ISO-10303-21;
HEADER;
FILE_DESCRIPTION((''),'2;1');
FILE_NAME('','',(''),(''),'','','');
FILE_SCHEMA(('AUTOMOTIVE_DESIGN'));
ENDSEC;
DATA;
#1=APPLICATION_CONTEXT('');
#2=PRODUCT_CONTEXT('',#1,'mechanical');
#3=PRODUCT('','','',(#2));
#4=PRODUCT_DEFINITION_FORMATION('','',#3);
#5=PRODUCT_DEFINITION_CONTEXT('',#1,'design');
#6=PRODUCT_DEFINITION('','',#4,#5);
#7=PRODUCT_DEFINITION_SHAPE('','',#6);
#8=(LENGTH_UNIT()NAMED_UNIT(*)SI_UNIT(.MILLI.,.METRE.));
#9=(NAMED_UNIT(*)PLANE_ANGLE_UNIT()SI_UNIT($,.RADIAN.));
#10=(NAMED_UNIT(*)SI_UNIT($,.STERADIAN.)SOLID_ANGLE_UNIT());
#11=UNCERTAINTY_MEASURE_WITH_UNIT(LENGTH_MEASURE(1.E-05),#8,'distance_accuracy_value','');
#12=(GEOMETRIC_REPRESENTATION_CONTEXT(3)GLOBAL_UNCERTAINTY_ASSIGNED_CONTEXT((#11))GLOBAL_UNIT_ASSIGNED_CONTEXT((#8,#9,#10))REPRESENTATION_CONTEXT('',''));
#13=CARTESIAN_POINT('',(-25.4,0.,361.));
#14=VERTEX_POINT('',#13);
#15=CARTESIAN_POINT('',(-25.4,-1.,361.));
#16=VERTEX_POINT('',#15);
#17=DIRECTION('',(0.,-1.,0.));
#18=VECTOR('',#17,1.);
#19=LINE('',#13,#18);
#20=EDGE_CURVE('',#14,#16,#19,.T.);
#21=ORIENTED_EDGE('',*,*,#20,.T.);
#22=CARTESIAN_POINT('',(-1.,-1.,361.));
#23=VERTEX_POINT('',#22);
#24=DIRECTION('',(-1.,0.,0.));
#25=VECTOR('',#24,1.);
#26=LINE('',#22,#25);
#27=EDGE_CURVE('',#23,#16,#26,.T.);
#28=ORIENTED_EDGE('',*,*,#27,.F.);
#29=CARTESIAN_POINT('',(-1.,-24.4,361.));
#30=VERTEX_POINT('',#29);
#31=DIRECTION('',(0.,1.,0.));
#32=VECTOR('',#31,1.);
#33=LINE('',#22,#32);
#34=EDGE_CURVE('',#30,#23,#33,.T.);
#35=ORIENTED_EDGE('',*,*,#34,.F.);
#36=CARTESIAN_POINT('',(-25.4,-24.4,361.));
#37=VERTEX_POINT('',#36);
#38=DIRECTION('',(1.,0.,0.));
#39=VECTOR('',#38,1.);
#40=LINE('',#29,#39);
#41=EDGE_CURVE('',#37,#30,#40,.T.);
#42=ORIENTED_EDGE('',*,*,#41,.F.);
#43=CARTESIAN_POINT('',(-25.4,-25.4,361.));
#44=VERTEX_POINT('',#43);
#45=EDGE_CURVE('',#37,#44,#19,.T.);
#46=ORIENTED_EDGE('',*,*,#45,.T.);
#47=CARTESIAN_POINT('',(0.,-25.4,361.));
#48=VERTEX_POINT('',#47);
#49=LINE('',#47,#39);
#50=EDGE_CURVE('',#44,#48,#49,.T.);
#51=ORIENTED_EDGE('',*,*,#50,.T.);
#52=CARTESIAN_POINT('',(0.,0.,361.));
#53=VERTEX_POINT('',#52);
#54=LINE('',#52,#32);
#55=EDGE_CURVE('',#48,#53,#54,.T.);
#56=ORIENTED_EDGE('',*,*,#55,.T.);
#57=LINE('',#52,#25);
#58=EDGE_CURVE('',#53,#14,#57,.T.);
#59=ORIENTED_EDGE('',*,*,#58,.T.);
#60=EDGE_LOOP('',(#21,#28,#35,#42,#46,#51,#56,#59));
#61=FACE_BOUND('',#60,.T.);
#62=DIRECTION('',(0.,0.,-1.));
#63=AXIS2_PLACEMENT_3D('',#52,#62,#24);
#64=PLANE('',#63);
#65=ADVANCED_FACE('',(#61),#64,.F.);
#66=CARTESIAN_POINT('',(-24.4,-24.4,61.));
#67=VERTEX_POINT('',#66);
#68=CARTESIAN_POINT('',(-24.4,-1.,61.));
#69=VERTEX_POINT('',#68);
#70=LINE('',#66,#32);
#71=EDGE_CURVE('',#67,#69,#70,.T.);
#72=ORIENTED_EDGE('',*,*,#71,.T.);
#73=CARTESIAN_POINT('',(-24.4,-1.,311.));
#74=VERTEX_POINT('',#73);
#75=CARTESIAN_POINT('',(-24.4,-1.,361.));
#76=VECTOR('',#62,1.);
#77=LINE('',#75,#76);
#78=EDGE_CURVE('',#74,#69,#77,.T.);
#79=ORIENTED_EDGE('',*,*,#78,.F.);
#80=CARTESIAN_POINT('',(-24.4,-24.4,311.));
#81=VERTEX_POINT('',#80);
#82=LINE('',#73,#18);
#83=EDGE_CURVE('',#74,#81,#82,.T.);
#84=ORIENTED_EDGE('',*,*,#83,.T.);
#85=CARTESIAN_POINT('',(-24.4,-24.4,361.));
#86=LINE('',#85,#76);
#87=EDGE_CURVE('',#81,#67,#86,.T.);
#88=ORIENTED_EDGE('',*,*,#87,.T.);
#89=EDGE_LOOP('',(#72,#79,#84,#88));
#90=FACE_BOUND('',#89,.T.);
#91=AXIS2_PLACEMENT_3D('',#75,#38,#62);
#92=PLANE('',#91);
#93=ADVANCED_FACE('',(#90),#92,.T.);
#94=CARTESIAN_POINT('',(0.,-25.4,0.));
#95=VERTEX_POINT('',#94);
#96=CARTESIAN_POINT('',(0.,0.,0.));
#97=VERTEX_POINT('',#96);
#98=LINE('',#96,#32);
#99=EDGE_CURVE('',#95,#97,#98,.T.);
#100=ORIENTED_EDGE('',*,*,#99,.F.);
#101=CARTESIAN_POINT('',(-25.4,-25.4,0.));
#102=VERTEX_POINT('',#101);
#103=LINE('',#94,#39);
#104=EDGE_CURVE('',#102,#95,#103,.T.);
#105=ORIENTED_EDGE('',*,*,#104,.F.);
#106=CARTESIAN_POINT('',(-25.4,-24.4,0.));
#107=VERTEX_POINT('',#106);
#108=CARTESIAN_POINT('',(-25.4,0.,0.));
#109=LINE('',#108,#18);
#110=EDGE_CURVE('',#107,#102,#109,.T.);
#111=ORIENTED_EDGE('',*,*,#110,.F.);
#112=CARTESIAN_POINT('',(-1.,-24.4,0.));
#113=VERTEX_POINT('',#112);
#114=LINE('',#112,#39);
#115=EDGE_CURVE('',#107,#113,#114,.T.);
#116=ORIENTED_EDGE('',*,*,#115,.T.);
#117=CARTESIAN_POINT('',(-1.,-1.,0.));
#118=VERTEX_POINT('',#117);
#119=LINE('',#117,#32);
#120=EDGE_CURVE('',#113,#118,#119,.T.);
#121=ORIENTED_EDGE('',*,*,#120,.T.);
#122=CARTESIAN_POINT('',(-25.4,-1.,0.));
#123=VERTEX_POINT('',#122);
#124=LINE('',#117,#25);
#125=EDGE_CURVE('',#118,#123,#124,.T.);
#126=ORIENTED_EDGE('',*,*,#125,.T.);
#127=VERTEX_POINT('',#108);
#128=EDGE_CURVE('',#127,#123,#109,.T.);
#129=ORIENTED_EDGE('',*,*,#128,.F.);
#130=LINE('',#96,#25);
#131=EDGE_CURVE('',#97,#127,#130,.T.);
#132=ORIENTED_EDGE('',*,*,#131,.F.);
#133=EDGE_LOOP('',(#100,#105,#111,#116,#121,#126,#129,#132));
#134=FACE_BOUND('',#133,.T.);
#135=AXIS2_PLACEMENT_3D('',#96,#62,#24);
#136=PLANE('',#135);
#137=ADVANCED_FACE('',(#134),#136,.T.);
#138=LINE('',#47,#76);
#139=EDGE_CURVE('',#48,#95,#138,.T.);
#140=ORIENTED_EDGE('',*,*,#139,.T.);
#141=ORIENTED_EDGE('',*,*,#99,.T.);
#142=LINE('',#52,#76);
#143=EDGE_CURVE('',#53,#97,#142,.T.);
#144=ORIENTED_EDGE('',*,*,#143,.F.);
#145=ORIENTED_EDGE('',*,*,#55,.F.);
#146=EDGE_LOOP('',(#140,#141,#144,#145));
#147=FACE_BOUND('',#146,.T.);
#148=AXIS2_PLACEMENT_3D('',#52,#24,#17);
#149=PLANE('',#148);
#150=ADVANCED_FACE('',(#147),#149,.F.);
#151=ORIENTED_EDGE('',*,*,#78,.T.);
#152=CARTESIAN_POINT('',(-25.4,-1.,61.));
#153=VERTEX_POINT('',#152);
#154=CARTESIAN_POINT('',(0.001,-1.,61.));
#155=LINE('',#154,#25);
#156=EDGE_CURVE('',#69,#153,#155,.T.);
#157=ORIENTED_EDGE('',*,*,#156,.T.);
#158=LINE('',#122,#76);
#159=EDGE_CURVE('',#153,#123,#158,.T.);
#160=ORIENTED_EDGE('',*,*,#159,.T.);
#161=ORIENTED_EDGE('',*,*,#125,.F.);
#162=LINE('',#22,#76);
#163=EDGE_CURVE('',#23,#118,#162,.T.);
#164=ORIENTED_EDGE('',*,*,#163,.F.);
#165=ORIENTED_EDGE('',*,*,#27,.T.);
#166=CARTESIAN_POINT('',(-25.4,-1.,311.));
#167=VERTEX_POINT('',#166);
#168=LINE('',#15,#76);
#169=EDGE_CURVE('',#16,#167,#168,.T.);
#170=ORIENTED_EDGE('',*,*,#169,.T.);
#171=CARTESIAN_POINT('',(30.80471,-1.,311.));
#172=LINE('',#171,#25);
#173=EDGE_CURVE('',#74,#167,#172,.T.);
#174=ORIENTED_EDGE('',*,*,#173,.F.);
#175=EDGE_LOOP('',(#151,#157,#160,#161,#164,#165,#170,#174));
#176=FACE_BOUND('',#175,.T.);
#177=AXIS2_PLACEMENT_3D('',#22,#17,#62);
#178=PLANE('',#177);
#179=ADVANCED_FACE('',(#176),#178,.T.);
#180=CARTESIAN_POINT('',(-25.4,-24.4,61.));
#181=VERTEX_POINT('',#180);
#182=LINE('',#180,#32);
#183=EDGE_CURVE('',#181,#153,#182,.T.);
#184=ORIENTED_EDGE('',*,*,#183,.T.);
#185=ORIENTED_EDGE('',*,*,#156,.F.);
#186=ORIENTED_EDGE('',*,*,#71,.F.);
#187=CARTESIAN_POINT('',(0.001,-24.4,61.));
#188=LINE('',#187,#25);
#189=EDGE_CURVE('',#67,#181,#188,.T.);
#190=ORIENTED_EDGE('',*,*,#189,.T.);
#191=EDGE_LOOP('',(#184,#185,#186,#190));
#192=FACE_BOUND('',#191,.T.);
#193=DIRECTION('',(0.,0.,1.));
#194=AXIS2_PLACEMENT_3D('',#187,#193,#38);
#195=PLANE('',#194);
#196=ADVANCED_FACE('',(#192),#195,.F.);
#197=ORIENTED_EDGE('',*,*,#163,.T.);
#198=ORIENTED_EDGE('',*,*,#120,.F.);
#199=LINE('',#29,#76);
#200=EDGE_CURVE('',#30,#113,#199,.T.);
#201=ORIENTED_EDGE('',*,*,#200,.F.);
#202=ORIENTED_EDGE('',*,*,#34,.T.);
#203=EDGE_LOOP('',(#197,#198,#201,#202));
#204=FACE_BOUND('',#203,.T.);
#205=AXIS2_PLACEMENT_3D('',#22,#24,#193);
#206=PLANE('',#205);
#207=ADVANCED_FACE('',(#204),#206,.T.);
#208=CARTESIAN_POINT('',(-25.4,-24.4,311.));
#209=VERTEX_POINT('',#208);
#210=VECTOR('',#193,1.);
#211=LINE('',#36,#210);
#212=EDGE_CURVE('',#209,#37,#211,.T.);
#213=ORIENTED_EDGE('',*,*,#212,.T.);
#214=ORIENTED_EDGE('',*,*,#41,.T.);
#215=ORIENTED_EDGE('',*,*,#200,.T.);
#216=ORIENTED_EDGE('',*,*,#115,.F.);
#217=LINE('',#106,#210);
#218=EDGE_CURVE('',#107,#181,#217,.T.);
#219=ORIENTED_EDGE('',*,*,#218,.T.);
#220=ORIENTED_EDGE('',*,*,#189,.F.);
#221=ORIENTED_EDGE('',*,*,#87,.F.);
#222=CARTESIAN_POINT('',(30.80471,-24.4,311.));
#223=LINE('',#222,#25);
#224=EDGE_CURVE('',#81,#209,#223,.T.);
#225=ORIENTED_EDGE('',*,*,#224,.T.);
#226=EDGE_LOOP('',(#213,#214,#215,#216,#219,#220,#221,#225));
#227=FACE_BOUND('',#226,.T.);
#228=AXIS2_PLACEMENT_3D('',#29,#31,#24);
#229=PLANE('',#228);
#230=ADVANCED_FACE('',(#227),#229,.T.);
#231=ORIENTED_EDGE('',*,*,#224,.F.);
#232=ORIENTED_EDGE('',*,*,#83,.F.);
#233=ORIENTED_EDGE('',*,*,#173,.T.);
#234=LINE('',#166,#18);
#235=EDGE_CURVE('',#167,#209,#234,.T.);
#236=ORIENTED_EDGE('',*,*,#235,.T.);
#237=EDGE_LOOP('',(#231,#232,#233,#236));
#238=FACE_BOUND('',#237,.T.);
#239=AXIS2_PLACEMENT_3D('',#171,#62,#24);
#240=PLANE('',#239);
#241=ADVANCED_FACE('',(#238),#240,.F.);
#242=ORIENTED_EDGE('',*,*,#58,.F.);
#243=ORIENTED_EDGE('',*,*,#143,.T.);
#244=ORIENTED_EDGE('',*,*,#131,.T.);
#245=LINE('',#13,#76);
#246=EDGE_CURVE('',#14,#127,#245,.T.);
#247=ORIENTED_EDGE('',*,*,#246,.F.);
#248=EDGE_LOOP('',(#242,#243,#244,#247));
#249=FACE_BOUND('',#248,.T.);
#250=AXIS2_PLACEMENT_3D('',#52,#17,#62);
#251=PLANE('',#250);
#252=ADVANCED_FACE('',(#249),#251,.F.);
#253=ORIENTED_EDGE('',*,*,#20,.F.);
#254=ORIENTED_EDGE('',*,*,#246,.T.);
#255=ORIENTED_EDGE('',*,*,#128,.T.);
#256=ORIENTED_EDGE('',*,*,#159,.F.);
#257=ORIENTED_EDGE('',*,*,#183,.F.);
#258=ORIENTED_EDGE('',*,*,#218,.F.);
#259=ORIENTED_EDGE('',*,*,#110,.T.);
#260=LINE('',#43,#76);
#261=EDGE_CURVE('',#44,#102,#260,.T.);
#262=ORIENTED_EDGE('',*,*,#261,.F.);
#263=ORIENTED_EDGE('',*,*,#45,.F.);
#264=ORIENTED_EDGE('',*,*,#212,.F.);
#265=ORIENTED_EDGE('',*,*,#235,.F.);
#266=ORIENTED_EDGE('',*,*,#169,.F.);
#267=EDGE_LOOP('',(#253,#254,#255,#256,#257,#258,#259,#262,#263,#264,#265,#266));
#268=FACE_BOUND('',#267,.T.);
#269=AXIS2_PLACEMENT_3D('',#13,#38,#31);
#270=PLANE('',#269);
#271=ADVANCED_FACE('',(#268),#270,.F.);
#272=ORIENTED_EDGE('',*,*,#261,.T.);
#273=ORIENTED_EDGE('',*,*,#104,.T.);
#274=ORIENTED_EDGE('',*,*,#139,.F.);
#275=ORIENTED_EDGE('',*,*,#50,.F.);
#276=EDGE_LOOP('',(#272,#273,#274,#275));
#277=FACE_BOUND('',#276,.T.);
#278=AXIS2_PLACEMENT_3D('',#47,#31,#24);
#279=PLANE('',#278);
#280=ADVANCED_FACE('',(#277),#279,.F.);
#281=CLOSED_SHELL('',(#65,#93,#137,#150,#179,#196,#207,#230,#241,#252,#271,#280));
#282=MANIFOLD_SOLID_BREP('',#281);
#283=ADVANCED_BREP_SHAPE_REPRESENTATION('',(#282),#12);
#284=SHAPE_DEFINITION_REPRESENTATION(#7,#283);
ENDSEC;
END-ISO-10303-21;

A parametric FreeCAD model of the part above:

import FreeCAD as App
import Part
import Sketcher
from FreeCAD import Vector
Q = App.Units.Quantity

doc = App.newDocument("Part")
params = doc.addObject("Spreadsheet::Sheet", "Params")
for row, (alias, value) in enumerate([
    ("sketch1_width", "25.4 mm"),
    ("sketch1_width2", "23.4 mm"),
    ("pad1_length", "361 mm"),
    ("sketch2_height", "50 mm"),
    ("sketch2_width", "23.4 mm"),
    ("pocket1_length", "1 mm"),
    ("sketch3_height", "11 mm"),
    ("sketch3_width", "23.4 mm"),
], start=1):
    params.set(f"A{row}", alias)
    params.set(f"B{row}", "=" + value)
    params.setAlias(f"B{row}", alias)

body = doc.addObject("PartDesign::Body", "Body")

sketch1 = body.newObject("Sketcher::SketchObject", "Sketch")
sketch1.AttachmentSupport = (doc.getObject("XY_Plane"), [""])
sketch1.MapMode = "FlatFace"
sketch1.addGeometry([
    Part.LineSegment(Vector(-25, 0, 0), Vector(-25, -25, 0)),
    Part.LineSegment(Vector(-25, -25, 0), Vector(0, -25, 0)),
    Part.LineSegment(Vector(0, -25, 0), Vector(0, 0, 0)),
    Part.LineSegment(Vector(0, 0, 0), Vector(-25, 0, 0)),
    Part.LineSegment(Vector(-1, -24, 0), Vector(-24, -24, 0)),
    Part.LineSegment(Vector(-24, -24, 0), Vector(-24, -1, 0)),
    Part.LineSegment(Vector(-24, -1, 0), Vector(-1, -1, 0)),
    Part.LineSegment(Vector(-1, -1, 0), Vector(-1, -24, 0)),
], False)
sketch1.addConstraint([
    Sketcher.Constraint("Coincident", 0, 2, 1, 1),
    Sketcher.Constraint("Coincident", 1, 2, 2, 1),
    Sketcher.Constraint("Coincident", 2, 2, 3, 1),
    Sketcher.Constraint("Coincident", 3, 2, 0, 1),
    Sketcher.Constraint("Coincident", 4, 2, 5, 1),
    Sketcher.Constraint("Coincident", 5, 2, 6, 1),
    Sketcher.Constraint("Coincident", 6, 2, 7, 1),
    Sketcher.Constraint("Coincident", 7, 2, 4, 1),
    Sketcher.Constraint("Vertical", 0),
    Sketcher.Constraint("Horizontal", 1),
    Sketcher.Constraint("Vertical", 2),
    Sketcher.Constraint("Horizontal", 3),
    Sketcher.Constraint("Horizontal", 4),
    Sketcher.Constraint("Vertical", 5),
    Sketcher.Constraint("Horizontal", 6),
    Sketcher.Constraint("Vertical", 7),
    Sketcher.Constraint("Coincident", 2, 2, -1, 1),
    Sketcher.Constraint("Equal", 3, 0),
    Sketcher.Constraint("Equal", 6, 5),
    Sketcher.Constraint("DistanceX", 1, 1, 1, 2, Q("25.4 mm")),
    Sketcher.Constraint("DistanceX", 4, 2, 4, 1, Q("23.4 mm")),
    Sketcher.Constraint("DistanceY", 5, 2, -1, 1, Q("1 mm")),
    Sketcher.Constraint("DistanceX", 6, 2, -1, 1, Q("1 mm")),
])
sketch1.setExpression("Constraints[19]", "Params.sketch1_width")
sketch1.setExpression("Constraints[20]", "Params.sketch1_width2")
pad1 = body.newObject("PartDesign::Pad", "Pad")
pad1.Profile = sketch1
pad1.setExpression("Length", "Params.pad1_length")

sketch2 = body.newObject("Sketcher::SketchObject", "Sketch001")
sketch2.AttachmentSupport = (doc.getObject("YZ_Plane"), [""])
sketch2.MapMode = "FlatFace"
sketch2.AttachmentOffset = App.Placement(Vector(0, 0, -25.4), App.Rotation())
sketch2.addGeometry([
    Part.LineSegment(Vector(-1, 311, 0), Vector(-24, 311, 0)),
    Part.LineSegment(Vector(-24, 311, 0), Vector(-24, 361, 0)),
    Part.LineSegment(Vector(-24, 361, 0), Vector(-1, 361, 0)),
    Part.LineSegment(Vector(-1, 361, 0), Vector(-1, 311, 0)),
    Part.LineSegment(Vector(-1, 0, 0), Vector(-24, 0, 0)),
    Part.LineSegment(Vector(-24, 0, 0), Vector(-24, 50, 0)),
    Part.LineSegment(Vector(-24, 50, 0), Vector(-1, 50, 0)),
    Part.LineSegment(Vector(-1, 50, 0), Vector(-1, 0, 0)),
], False)
sketch2.addConstraint([
    Sketcher.Constraint("Coincident", 0, 2, 1, 1),
    Sketcher.Constraint("Coincident", 1, 2, 2, 1),
    Sketcher.Constraint("Coincident", 2, 2, 3, 1),
    Sketcher.Constraint("Coincident", 3, 2, 0, 1),
    Sketcher.Constraint("Coincident", 4, 2, 5, 1),
    Sketcher.Constraint("Coincident", 5, 2, 6, 1),
    Sketcher.Constraint("Coincident", 6, 2, 7, 1),
    Sketcher.Constraint("Coincident", 7, 2, 4, 1),
    Sketcher.Constraint("Horizontal", 0),
    Sketcher.Constraint("Vertical", 1),
    Sketcher.Constraint("Horizontal", 2),
    Sketcher.Constraint("Vertical", 3),
    Sketcher.Constraint("Horizontal", 4),
    Sketcher.Constraint("Vertical", 5),
    Sketcher.Constraint("Horizontal", 6),
    Sketcher.Constraint("Vertical", 7),
    Sketcher.Constraint("PointOnObject", 4, 2, -1),
    Sketcher.Constraint("Vertical", 1, 2, 4, 2),
    Sketcher.Constraint("Vertical", 3, 2, 6, 2),
    Sketcher.Constraint("Equal", 3, 5),
    Sketcher.Constraint("DistanceY", 1, 1, 1, 2, Q("50 mm")),
    Sketcher.Constraint("DistanceX", 0, 2, 0, 1, Q("23.4 mm")),
    Sketcher.Constraint("DistanceY", -1, 1, 0, 2, Q("311 mm")),
    Sketcher.Constraint("DistanceX", 2, 2, -1, 1, Q("1 mm")),
])
sketch2.setExpression("Constraints[20]", "Params.sketch2_height")
sketch2.setExpression("Constraints[21]", "Params.sketch2_width")
pocket1 = body.newObject("PartDesign::Pocket", "Pocket")
pocket1.Profile = sketch2
pocket1.setExpression("Length", "Params.pocket1_length")
pocket1.Reversed = True

sketch3 = body.newObject("Sketcher::SketchObject", "Sketch002")
sketch3.AttachmentSupport = (doc.getObject("YZ_Plane"), [""])
sketch3.MapMode = "FlatFace"
sketch3.AttachmentOffset = App.Placement(Vector(0, 0, -25.4), App.Rotation())
sketch3.addGeometry([
    Part.LineSegment(Vector(-1, 50, 0), Vector(-24, 50, 0)),
    Part.LineSegment(Vector(-24, 50, 0), Vector(-24, 61, 0)),
    Part.LineSegment(Vector(-24, 61, 0), Vector(-1, 61, 0)),
    Part.LineSegment(Vector(-1, 61, 0), Vector(-1, 50, 0)),
], False)
sketch3.addConstraint([
    Sketcher.Constraint("Coincident", 0, 2, 1, 1),
    Sketcher.Constraint("Coincident", 1, 2, 2, 1),
    Sketcher.Constraint("Coincident", 2, 2, 3, 1),
    Sketcher.Constraint("Coincident", 3, 2, 0, 1),
    Sketcher.Constraint("Horizontal", 0),
    Sketcher.Constraint("Vertical", 1),
    Sketcher.Constraint("Horizontal", 2),
    Sketcher.Constraint("Vertical", 3),
    Sketcher.Constraint("DistanceY", 1, 1, 1, 2, Q("11 mm")),
    Sketcher.Constraint("DistanceX", 0, 2, 0, 1, Q("23.4 mm")),
    Sketcher.Constraint("DistanceY", -1, 1, 0, 2, Q("50 mm")),
    Sketcher.Constraint("DistanceX", 2, 2, -1, 1, Q("1 mm")),
])
sketch3.setExpression("Constraints[8]", "Params.sketch3_height")
sketch3.setExpression("Constraints[9]", "Params.sketch3_width")
pocket2 = body.newObject("PartDesign::Pocket", "Pocket001")
pocket2.Profile = sketch3
pocket2.Type = "UpToFirst"
pocket2.Reversed = True

doc.recompute()
